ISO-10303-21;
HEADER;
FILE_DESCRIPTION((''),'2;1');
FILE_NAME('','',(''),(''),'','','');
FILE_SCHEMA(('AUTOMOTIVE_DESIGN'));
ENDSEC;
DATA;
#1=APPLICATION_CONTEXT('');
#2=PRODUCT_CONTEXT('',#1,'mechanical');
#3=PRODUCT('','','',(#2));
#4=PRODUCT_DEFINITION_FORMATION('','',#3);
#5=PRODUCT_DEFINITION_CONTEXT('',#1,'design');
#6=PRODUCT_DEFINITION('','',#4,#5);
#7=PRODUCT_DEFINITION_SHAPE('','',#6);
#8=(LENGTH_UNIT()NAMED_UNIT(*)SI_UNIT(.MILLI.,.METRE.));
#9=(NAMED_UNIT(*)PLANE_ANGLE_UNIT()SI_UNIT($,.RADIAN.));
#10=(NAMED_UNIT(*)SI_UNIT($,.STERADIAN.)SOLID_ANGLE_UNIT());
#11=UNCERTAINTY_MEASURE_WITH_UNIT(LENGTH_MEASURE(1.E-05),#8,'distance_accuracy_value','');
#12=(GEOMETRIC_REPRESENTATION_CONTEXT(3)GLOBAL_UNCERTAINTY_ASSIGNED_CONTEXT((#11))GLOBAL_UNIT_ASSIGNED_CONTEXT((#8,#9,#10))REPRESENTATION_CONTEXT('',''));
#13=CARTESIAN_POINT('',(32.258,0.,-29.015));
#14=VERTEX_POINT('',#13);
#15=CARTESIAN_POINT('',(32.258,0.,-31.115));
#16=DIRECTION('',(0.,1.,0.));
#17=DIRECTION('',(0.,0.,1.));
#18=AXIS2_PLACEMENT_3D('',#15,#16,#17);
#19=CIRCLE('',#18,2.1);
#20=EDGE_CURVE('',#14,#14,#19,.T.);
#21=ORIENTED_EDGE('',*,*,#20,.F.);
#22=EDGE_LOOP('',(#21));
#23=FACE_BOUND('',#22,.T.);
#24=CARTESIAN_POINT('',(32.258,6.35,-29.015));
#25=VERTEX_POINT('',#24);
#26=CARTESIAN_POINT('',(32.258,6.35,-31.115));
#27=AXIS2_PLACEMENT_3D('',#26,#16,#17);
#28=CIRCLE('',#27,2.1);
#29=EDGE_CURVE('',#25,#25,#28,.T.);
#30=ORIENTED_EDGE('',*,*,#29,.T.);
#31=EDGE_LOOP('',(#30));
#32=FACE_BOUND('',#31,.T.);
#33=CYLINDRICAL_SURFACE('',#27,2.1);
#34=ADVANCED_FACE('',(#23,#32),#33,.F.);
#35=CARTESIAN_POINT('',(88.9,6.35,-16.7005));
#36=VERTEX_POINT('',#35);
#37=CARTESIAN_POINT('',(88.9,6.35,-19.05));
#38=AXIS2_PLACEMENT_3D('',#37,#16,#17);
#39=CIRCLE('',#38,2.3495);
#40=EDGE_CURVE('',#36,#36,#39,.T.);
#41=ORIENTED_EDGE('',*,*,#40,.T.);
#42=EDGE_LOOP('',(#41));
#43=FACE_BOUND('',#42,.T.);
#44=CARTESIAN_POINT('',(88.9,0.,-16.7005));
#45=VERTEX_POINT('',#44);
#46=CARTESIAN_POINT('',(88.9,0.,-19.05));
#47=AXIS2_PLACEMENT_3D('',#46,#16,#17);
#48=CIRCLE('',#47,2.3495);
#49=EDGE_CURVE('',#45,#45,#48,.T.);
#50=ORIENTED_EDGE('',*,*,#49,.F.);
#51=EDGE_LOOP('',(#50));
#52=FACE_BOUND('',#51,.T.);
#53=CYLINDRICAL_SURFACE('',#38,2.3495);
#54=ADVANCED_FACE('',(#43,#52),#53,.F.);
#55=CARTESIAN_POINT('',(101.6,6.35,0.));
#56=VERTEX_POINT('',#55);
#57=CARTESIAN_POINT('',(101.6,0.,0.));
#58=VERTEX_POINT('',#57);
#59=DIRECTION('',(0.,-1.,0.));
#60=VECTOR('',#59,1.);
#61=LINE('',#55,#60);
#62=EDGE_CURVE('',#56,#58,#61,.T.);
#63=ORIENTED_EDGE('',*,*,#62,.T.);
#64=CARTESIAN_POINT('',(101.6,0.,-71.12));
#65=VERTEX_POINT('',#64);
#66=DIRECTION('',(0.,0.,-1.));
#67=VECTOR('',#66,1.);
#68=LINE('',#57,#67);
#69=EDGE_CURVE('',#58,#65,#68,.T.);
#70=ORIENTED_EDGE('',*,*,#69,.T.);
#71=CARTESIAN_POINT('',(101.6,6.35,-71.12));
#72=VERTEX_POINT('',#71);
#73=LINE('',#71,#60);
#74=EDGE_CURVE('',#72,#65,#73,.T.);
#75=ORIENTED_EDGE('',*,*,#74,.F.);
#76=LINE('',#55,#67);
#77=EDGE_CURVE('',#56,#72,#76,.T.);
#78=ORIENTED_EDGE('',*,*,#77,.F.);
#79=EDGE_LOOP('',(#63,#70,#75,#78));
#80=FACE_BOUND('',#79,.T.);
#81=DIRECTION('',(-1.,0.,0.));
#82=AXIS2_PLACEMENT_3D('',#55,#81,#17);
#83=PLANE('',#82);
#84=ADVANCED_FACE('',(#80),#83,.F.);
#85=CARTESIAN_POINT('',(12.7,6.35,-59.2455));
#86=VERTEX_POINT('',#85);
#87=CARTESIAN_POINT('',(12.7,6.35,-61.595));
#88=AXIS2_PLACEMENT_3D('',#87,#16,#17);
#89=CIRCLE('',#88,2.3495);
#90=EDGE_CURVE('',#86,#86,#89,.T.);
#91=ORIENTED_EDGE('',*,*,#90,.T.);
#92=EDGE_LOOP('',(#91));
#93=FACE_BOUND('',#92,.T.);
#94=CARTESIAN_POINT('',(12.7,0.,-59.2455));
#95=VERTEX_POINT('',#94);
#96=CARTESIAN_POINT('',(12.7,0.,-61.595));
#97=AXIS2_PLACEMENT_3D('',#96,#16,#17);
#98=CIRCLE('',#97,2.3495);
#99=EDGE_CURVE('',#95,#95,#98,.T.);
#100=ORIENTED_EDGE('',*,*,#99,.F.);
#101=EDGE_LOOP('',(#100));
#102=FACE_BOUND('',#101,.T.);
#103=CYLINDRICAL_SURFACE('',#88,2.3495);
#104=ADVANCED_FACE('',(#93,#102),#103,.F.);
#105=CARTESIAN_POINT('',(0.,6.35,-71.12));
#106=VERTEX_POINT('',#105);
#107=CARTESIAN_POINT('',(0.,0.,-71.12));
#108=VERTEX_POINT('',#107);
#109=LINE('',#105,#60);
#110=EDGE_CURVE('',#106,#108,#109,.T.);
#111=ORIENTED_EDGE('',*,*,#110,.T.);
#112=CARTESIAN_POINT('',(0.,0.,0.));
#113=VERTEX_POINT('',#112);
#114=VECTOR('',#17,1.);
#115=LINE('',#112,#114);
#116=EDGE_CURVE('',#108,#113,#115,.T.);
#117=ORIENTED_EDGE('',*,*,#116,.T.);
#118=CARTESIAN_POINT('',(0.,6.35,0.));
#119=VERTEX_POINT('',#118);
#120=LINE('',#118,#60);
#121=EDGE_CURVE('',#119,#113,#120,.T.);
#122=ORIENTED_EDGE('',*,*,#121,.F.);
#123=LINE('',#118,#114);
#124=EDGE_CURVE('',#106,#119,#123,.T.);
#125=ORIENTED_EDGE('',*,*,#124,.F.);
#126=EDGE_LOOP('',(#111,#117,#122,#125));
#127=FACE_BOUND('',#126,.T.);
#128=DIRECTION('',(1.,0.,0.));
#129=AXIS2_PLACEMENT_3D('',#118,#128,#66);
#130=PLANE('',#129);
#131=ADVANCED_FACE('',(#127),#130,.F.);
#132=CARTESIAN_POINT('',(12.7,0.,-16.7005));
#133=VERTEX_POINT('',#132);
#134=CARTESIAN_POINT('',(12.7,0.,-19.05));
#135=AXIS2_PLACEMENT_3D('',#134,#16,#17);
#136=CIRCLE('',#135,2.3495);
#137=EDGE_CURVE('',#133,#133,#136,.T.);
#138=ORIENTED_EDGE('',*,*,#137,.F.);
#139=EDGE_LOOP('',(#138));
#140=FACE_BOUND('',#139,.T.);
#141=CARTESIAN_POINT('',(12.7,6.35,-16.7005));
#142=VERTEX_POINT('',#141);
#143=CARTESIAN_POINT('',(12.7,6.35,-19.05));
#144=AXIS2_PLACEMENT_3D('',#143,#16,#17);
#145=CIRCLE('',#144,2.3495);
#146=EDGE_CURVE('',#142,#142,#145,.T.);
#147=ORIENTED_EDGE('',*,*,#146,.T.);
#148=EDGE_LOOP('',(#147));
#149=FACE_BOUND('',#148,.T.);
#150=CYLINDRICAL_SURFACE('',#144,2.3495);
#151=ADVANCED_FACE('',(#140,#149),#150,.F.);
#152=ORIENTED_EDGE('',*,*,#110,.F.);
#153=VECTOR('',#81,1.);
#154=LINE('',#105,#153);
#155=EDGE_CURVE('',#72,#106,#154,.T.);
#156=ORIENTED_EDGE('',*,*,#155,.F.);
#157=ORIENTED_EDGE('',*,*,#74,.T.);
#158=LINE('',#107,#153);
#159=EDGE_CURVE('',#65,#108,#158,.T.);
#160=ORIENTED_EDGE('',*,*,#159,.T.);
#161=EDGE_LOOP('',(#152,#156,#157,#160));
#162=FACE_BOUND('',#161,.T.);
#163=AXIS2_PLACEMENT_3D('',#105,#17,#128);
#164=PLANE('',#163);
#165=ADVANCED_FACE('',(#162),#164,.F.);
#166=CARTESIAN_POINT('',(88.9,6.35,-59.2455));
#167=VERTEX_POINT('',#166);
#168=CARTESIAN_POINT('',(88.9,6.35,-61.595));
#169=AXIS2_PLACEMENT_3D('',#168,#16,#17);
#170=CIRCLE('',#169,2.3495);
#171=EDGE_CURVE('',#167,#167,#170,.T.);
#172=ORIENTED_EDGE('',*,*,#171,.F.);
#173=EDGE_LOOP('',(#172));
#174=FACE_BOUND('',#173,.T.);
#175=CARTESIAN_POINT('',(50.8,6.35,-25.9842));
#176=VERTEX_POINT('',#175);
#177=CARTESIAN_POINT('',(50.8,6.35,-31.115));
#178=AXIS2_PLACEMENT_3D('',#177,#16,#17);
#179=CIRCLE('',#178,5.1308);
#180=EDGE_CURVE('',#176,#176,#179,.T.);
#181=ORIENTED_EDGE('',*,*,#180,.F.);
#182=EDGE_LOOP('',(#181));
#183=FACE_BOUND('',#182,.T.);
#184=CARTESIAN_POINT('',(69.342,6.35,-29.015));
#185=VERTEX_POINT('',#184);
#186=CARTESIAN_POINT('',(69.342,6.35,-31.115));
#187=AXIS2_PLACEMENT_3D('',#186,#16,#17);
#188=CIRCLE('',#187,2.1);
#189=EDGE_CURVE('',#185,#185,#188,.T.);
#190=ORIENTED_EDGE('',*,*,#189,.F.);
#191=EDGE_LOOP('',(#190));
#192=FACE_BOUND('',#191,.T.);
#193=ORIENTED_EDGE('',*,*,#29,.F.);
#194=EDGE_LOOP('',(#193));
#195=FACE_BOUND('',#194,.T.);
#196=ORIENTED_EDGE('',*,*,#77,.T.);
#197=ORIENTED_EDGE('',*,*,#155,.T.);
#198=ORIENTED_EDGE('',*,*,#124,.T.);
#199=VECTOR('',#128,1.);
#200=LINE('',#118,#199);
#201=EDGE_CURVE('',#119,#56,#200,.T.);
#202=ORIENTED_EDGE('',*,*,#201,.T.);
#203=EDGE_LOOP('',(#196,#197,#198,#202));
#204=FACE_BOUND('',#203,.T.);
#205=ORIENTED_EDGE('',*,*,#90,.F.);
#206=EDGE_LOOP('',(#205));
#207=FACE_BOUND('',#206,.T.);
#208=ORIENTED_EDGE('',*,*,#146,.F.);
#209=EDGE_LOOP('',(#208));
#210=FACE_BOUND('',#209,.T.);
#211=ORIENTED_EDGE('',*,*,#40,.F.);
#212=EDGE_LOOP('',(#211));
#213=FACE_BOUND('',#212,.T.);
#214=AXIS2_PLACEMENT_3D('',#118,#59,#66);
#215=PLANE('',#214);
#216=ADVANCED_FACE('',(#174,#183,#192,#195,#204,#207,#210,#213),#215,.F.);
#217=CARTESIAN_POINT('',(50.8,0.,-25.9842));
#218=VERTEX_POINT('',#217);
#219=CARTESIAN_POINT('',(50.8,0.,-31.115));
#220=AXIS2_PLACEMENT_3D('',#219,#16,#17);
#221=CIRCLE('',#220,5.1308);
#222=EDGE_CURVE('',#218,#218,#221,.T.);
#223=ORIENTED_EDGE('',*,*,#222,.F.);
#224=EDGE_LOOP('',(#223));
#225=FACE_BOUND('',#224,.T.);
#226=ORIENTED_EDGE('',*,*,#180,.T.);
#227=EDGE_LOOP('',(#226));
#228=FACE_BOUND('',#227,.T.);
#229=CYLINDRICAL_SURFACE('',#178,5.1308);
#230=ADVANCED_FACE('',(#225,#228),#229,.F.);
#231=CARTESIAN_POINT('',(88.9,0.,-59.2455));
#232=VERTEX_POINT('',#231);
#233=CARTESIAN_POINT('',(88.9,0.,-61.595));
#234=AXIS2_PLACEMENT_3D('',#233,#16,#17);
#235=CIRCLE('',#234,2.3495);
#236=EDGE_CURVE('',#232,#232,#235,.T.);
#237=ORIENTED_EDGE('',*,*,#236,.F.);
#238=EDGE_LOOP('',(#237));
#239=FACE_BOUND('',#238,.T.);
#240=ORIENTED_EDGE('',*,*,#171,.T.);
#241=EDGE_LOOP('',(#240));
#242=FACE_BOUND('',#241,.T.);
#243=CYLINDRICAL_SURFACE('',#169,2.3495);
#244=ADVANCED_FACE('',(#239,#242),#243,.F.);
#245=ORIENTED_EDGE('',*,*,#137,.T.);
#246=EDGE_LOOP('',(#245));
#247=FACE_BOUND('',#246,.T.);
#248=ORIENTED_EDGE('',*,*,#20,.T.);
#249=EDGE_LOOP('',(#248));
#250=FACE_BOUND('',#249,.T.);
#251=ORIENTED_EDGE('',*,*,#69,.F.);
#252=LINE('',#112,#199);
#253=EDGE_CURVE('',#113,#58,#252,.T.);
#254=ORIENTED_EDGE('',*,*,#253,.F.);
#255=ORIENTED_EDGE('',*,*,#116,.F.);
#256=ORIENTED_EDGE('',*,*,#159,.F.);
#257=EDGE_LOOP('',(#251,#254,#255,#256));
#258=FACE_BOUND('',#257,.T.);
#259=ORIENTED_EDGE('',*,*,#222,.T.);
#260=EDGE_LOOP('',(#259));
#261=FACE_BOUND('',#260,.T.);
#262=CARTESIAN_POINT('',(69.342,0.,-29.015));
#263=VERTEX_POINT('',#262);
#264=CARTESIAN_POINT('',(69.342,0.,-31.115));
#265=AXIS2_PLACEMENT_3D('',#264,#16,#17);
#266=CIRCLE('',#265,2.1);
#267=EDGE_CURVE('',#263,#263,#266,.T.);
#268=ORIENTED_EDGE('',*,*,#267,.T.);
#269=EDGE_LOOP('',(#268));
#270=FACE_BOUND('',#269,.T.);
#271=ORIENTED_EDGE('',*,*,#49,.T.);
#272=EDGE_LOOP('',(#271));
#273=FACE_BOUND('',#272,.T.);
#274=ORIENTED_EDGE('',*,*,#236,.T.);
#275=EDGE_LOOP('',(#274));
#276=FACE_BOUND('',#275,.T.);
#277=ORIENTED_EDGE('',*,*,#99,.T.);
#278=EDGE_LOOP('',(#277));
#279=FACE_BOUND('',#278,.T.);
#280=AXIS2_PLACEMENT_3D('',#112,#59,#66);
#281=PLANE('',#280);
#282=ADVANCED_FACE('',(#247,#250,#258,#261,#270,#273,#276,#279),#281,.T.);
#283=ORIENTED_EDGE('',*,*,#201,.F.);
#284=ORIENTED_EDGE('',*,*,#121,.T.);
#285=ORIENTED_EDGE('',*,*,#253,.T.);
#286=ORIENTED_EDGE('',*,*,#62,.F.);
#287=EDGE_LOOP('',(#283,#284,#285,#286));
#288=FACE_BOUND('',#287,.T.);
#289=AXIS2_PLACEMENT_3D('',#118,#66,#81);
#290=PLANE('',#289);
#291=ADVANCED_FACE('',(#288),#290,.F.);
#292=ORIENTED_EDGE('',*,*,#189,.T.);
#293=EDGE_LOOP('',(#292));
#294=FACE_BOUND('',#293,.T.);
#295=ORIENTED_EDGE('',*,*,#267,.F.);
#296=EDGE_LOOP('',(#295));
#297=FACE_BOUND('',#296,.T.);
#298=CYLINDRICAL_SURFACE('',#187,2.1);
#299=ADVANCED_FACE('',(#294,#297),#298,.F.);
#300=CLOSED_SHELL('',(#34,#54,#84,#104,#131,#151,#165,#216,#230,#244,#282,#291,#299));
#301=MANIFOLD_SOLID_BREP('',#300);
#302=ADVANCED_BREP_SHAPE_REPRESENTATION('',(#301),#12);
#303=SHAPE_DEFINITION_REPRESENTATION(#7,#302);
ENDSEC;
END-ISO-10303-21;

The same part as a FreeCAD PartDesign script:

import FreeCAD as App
import Part
import Sketcher
Q = App.Units.Quantity


def add_polygon(sketch, points):
    """Adds a closed chain of lines whose ends are joined by coincident constraints."""
    first, n = sketch.GeometryCount, len(points)
    for a, b in zip(points, points[1:] + points[:1]):
        sketch.addGeometry(Part.LineSegment(App.Vector(*a, 0), App.Vector(*b, 0)), False)
    for i in range(n):
        sketch.addConstraint(Sketcher.Constraint("Coincident", first + i, 2, first + (i + 1) % n, 1))

doc = App.newDocument("Part")
body = doc.addObject("PartDesign::Body", "Body")

# Sketch on XZ plane
sketch1 = body.newObject("Sketcher::SketchObject", "Sketch")
sketch1.AttachmentSupport = (doc.getObject("XZ_Plane"), [""])
sketch1.MapMode = "FlatFace"
add_polygon(sketch1, [(0, -71), (0, 0), (102, 0), (102, -71)])  # lines 0-3
sketch1.addConstraint([
    Sketcher.Constraint("Vertical", 0),
    Sketcher.Constraint("Horizontal", 1),
    Sketcher.Constraint("Vertical", 2),
    Sketcher.Constraint("Horizontal", 3),
    Sketcher.Constraint("Coincident", 0, 2, -1, 1),
    Sketcher.Constraint("DistanceX", 1, 1, 1, 2, Q("4 in")),
    Sketcher.Constraint("DistanceY", 0, 1, 0, 2, Q("2.8 in")),
])
pad1 = body.newObject("PartDesign::Pad", "Pad")
pad1.Profile = sketch1
pad1.Length = Q("0.25 in")
pad1.Reversed = True

# Sketch on XZ plane
sketch2 = body.newObject("Sketcher::SketchObject", "Sketch001")
sketch2.AttachmentSupport = (doc.getObject("XZ_Plane"), [""])
sketch2.MapMode = "FlatFace"
sketch2.AttachmentOffset = App.Placement(App.Vector(0, 0, -0.25 * 25.4), App.Rotation())
sketch2.addGeometry([
    Part.Circle(App.Vector(12.7, -61.6, 0), App.Vector(0, 0, 1), 2.3),
    Part.Circle(App.Vector(88.9, -61.6, 0), App.Vector(0, 0, 1), 2.3),
    Part.Circle(App.Vector(88.9, -19.1, 0), App.Vector(0, 0, 1), 2.3),
    Part.Circle(App.Vector(12.7, -19.1, 0), App.Vector(0, 0, 1), 2.3),
], False)
sketch2.addConstraint([
    Sketcher.Constraint("Equal", 0, 1),
    Sketcher.Constraint("Equal", 1, 2),
    Sketcher.Constraint("Equal", 2, 3),
    Sketcher.Constraint("Horizontal", 0, 3, 1, 3),
    Sketcher.Constraint("Horizontal", 2, 3, 3, 3),
    Sketcher.Constraint("Vertical", 1, 3, 2, 3),
    Sketcher.Constraint("Vertical", 0, 3, 3, 3),
    Sketcher.Constraint("Diameter", 0, Q("0.185 in")),
    Sketcher.Constraint("DistanceX", 0, 3, 1, 3, Q("3 in")),
    Sketcher.Constraint("DistanceX", -1, 1, 0, 3, Q("0.5 in")),
    Sketcher.Constraint("DistanceY", 2, 3, -1, 1, Q("0.75 in")),
    Sketcher.Constraint("DistanceY", 0, 3, -1, 1, Q("2.425 in")),
])
doc.recompute()
hole = body.newObject("PartDesign::Hole", "Hole")
hole.Profile = sketch2
hole.ThreadType = "None"
hole.Diameter = Q("0.185 in")
hole.DepthType = "Dimension"
hole.Depth = Q("0.25 in")
hole.DrillPoint = "Angled"
hole.DrillPointAngle = 118
hole.Reversed = True

# Sketch on XZ plane
sketch3 = body.newObject("Sketcher::SketchObject", "Sketch002")
sketch3.AttachmentSupport = (doc.getObject("XZ_Plane"), [""])
sketch3.MapMode = "FlatFace"
sketch3.AttachmentOffset = App.Placement(App.Vector(0, 0, -0.25 * 25.4), App.Rotation())
sketch3.addGeometry(Part.Circle(App.Vector(51, -31, 0), App.Vector(0, 0, 1), 5), False)
sketch3.addConstraint([
    Sketcher.Constraint("Diameter", 0, Q("0.404 in")),
    Sketcher.Constraint("DistanceX", -1, 1, 0, 3, Q("2 in")),
    Sketcher.Constraint("DistanceY", 0, 3, -1, 1, Q("1.225 in")),
])
doc.recompute()
hole2 = body.newObject("PartDesign::Hole", "Hole001")
hole2.Profile = sketch3
hole2.ThreadType = "None"
hole2.Diameter = Q("0.404 in")
hole2.DepthType = "Dimension"
hole2.Depth = Q("0.25 in")
hole2.DrillPoint = "Angled"
hole2.DrillPointAngle = 118
hole2.Reversed = True

# Sketch on XZ plane
sketch4 = body.newObject("Sketcher::SketchObject", "Sketch003")
sketch4.AttachmentSupport = (doc.getObject("XZ_Plane"), [""])
sketch4.MapMode = "FlatFace"
sketch4.AttachmentOffset = App.Placement(App.Vector(0, 0, -0.25 * 25.4), App.Rotation())
sketch4.addGeometry([
    Part.Circle(App.Vector(32.3, -31.1, 0), App.Vector(0, 0, 1), 2.1),
    Part.Circle(App.Vector(69.3, -31.1, 0), App.Vector(0, 0, 1), 2.1),
], False)
sketch4.addConstraint([
    Sketcher.Constraint("Equal", 0, 1),
    Sketcher.Constraint("Horizontal", 0, 3, 1, 3),
    Sketcher.Constraint("Diameter", 0, 4.2),
    Sketcher.Constraint("DistanceX", -1, 1, 0, 3, Q("1.27 in")),
    Sketcher.Constraint("DistanceX", -1, 1, 1, 3, Q("2.73 in")),
    Sketcher.Constraint("DistanceY", 0, 3, -1, 1, Q("1.225 in")),
])
doc.recompute()
hole3 = body.newObject("PartDesign::Hole", "Hole002")
hole3.Profile = sketch4
hole3.ThreadType = "None"
hole3.Diameter = 4.2
hole3.DepthType = "ThroughAll"
hole3.Reversed = True

doc.recompute()
